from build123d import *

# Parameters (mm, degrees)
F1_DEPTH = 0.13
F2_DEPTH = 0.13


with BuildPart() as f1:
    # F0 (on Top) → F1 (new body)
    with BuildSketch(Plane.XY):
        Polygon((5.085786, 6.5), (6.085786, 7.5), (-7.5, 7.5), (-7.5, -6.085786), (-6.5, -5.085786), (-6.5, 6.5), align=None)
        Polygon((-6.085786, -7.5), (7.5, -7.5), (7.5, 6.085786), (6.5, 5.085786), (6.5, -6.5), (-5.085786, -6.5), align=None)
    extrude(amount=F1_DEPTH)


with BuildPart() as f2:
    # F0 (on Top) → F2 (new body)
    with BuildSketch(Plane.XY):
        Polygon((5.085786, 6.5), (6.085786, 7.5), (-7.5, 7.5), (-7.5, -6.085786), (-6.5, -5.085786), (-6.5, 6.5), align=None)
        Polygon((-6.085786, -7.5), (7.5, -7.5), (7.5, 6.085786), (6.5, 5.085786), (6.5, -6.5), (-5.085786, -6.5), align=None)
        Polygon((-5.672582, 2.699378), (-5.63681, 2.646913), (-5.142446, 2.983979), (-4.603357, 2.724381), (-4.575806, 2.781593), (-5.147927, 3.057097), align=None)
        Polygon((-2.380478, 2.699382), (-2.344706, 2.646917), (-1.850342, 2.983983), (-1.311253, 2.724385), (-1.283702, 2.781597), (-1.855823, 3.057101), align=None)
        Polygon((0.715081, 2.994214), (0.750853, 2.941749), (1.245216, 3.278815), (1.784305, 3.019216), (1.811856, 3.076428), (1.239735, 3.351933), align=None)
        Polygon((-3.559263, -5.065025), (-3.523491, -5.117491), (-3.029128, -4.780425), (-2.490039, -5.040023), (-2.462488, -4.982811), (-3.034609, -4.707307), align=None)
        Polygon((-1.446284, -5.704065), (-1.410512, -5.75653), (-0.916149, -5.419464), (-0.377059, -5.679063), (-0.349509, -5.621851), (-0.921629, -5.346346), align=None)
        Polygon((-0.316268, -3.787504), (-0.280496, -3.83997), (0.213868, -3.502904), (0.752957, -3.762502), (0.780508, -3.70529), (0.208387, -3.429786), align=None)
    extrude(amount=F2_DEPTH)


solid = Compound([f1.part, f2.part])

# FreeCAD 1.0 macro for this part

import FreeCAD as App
import Part
import Sketcher
Q = App.Units.Quantity


def add_polygon(sketch, points):
    """Adds a closed chain of lines whose ends are joined by coincident constraints."""
    first, n = sketch.GeometryCount, len(points)
    for a, b in zip(points, points[1:] + points[:1]):
        sketch.addGeometry(Part.LineSegment(App.Vector(*a, 0), App.Vector(*b, 0)), False)
    for i in range(n):
        sketch.addConstraint(Sketcher.Constraint("Coincident", first + i, 2, first + (i + 1) % n, 1))

doc = App.newDocument("Part")
body = doc.addObject("PartDesign::Body", "Body")
body.AllowCompound = True

# Sketch on XY plane
sketch1 = body.newObject("Sketcher::SketchObject", "Sketch")
sketch1.AttachmentSupport = (doc.getObject("XY_Plane"), [""])
sketch1.MapMode = "FlatFace"
add_polygon(sketch1, [(5.1, 6.5), (6.1, 7.5), (-7.5, 7.5), (-7.5, -6.1), (-6.5, -5.1), (-6.5, 6.5)])  # lines 0-5
add_polygon(sketch1, [(-6.1, -7.5), (7.5, -7.5), (7.5, 6.1), (6.5, 5.1), (6.5, -6.5), (-5.1, -6.5)])  # lines 6-11
sketch1.addConstraint(Sketcher.Constraint("Horizontal", 1))
sketch1.addConstraint(Sketcher.Constraint("Vertical", 2))
sketch1.addConstraint(Sketcher.Constraint("Vertical", 4))
sketch1.addConstraint(Sketcher.Constraint("Horizontal", 5))
sketch1.addConstraint(Sketcher.Constraint("Horizontal", 6))
sketch1.addConstraint(Sketcher.Constraint("Vertical", 7))
sketch1.addConstraint(Sketcher.Constraint("Vertical", 9))
sketch1.addConstraint(Sketcher.Constraint("Horizontal", 10))
sketch1.addConstraint(Sketcher.Constraint("Symmetric", 1, 2, 6, 2, -1, 1))
sketch1.addConstraint(Sketcher.Constraint("Symmetric", 3, 2, 8, 2, -1, 1))
sketch1.addConstraint(Sketcher.Constraint("Symmetric", 5, 2, 10, 2, -1, 1))
sketch1.addConstraint(Sketcher.Constraint("Parallel", 0, 3))
sketch1.addConstraint(Sketcher.Constraint("Parallel", 3, 8))
sketch1.addConstraint(Sketcher.Constraint("Parallel", 8, 11))
sketch1.addConstraint(Sketcher.Constraint("Equal", 6, 2))
sketch1.addConstraint(Sketcher.Constraint("Equal", 10, 4))
sketch1.addConstraint(Sketcher.Constraint("Equal", 0, 3))
sketch1.addConstraint(Sketcher.Constraint("DistanceY", -1, 1, 0, 2, Q("7.5 mm")))
sketch1.addConstraint(Sketcher.Constraint("DistanceX", 1, 2, -1, 1, Q("7.5 mm")))
sketch1.addConstraint(Sketcher.Constraint("DistanceX", 3, 2, -1, 1, Q("6.5 mm")))
sketch1.addConstraint(Sketcher.Constraint("DistanceX", 1, 2, 1, 1, Q("13.585786 mm")))
pad1 = body.newObject("PartDesign::Pad", "Pad")
pad1.Profile = sketch1
pad1.Length = 0.13
body2 = doc.addObject("PartDesign::Body", "Body001")
body2.AllowCompound = True

# Sketch on XY plane
sketch2 = body2.newObject("Sketcher::SketchObject", "Sketch001")
sketch2.AttachmentSupport = (doc.getObject("XY_Plane001"), [""])
sketch2.MapMode = "FlatFace"
add_polygon(sketch2, [(5.09, 6.5), (6.09, 7.5), (-7.5, 7.5), (-7.5, -6.09), (-6.5, -5.09), (-6.5, 6.5)])  # lines 0-5
add_polygon(sketch2, [(-6.09, -7.5), (7.5, -7.5), (7.5, 6.09), (6.5, 5.09), (6.5, -6.5), (-5.09, -6.5)])  # lines 6-11
add_polygon(sketch2, [(-5.67, 2.7), (-5.64, 2.65), (-5.14, 2.98), (-4.6, 2.72), (-4.58, 2.78), (-5.15, 3.06)])  # lines 12-17
add_polygon(sketch2, [(-2.38, 2.7), (-2.34, 2.65), (-1.85, 2.98), (-1.31, 2.72), (-1.28, 2.78), (-1.86, 3.06)])  # lines 18-23
add_polygon(sketch2, [(0.72, 2.99), (0.75, 2.94), (1.25, 3.28), (1.78, 3.02), (1.81, 3.08), (1.24, 3.35)])  # lines 24-29
add_polygon(sketch2, [(-3.56, -5.07), (-3.52, -5.12), (-3.03, -4.78), (-2.49, -5.04), (-2.46, -4.98), (-3.03, -4.71)])  # lines 30-35
add_polygon(sketch2, [(-1.45, -5.7), (-1.41, -5.76), (-0.92, -5.42), (-0.38, -5.68), (-0.35, -5.62), (-0.92, -5.35)])  # lines 36-41
add_polygon(sketch2, [(-0.32, -3.79), (-0.28, -3.84), (0.21, -3.5), (0.75, -3.76), (0.78, -3.71), (0.21, -3.43)])  # lines 42-47
sketch2.addConstraint(Sketcher.Constraint("Horizontal", 1))
sketch2.addConstraint(Sketcher.Constraint("Vertical", 2))
sketch2.addConstraint(Sketcher.Constraint("Vertical", 4))
sketch2.addConstraint(Sketcher.Constraint("Horizontal", 5))
sketch2.addConstraint(Sketcher.Constraint("Horizontal", 6))
sketch2.addConstraint(Sketcher.Constraint("Vertical", 7))
sketch2.addConstraint(Sketcher.Constraint("Vertical", 9))
sketch2.addConstraint(Sketcher.Constraint("Horizontal", 10))
sketch2.addConstraint(Sketcher.Constraint("Symmetric", 1, 2, 6, 2, -1, 1))
sketch2.addConstraint(Sketcher.Constraint("Symmetric", 3, 2, 8, 2, -1, 1))
sketch2.addConstraint(Sketcher.Constraint("Symmetric", 5, 2, 10, 2, -1, 1))
sketch2.addConstraint(Sketcher.Constraint("Parallel", 0, 3))
sketch2.addConstraint(Sketcher.Constraint("Parallel", 3, 8))
sketch2.addConstraint(Sketcher.Constraint("Parallel", 8, 11))
sketch2.addConstraint(Sketcher.Constraint("Parallel", 14, 16))
sketch2.addConstraint(Sketcher.Constraint("Parallel", 13, 17))
sketch2.addConstraint(Sketcher.Constraint("Parallel", 12, 18))
sketch2.addConstraint(Sketcher.Constraint("Parallel", 17, 19))
sketch2.addConstraint(Sketcher.Constraint("Parallel", 16, 20))
sketch2.addConstraint(Sketcher.Constraint("Parallel", 15, 21))
sketch2.addConstraint(Sketcher.Constraint("Parallel", 20, 22))
sketch2.addConstraint(Sketcher.Constraint("Parallel", 19, 23))
sketch2.addConstraint(Sketcher.Constraint("Parallel", 18, 24))
sketch2.addConstraint(Sketcher.Constraint("Parallel", 23, 25))
sketch2.addConstraint(Sketcher.Constraint("Parallel", 20, 26))
sketch2.addConstraint(Sketcher.Constraint("Parallel", 21, 27))
sketch2.addConstraint(Sketcher.Constraint("Parallel", 26, 28))
sketch2.addConstraint(Sketcher.Constraint("Parallel", 25, 29))
sketch2.addConstraint(Sketcher.Constraint("Parallel", 29, 31))
sketch2.addConstraint(Sketcher.Constraint("Parallel", 28, 32))
sketch2.addConstraint(Sketcher.Constraint("Parallel", 27, 33))
sketch2.addConstraint(Sketcher.Constraint("Parallel", 32, 34))
sketch2.addConstraint(Sketcher.Constraint("Parallel", 31, 35))
sketch2.addConstraint(Sketcher.Constraint("Parallel", 24, 36))
sketch2.addConstraint(Sketcher.Constraint("Parallel", 35, 37))
sketch2.addConstraint(Sketcher.Constraint("Parallel", 34, 38))
sketch2.addConstraint(Sketcher.Constraint("Parallel", 38, 40))
sketch2.addConstraint(Sketcher.Constraint("Parallel", 37, 41))
sketch2.addConstraint(Sketcher.Constraint("Parallel", 30, 42))
sketch2.addConstraint(Sketcher.Constraint("Parallel", 41, 43))
sketch2.addConstraint(Sketcher.Constraint("Parallel", 40, 44))
sketch2.addConstraint(Sketcher.Constraint("Parallel", 33, 45))
sketch2.addConstraint(Sketcher.Constraint("Parallel", 44, 46))
sketch2.addConstraint(Sketcher.Constraint("Parallel", 43, 47))
sketch2.addConstraint(Sketcher.Constraint("Equal", 6, 2))
sketch2.addConstraint(Sketcher.Constraint("Equal", 10, 4))
sketch2.addConstraint(Sketcher.Constraint("Equal", 0, 3))
sketch2.addConstraint(Sketcher.Constraint("Equal", 13, 14))
sketch2.addConstraint(Sketcher.Constraint("Equal", 12, 15))
sketch2.addConstraint(Sketcher.Constraint("Equal", 16, 17))
sketch2.addConstraint(Sketcher.Constraint("Equal", 15, 18))
sketch2.addConstraint(Sketcher.Constraint("Equal", 14, 19))
sketch2.addConstraint(Sketcher.Constraint("Equal", 19, 20))
sketch2.addConstraint(Sketcher.Constraint("Equal", 18, 21))
sketch2.addConstraint(Sketcher.Constraint("Equal", 21, 24))
sketch2.addConstraint(Sketcher.Constraint("Equal", 20, 25))
sketch2.addConstraint(Sketcher.Constraint("Equal", 25, 26))
sketch2.addConstraint(Sketcher.Constraint("Equal", 24, 27))
sketch2.addConstraint(Sketcher.Constraint("Equal", 27, 30))
sketch2.addConstraint(Sketcher.Constraint("Equal", 26, 31))
sketch2.addConstraint(Sketcher.Constraint("Equal", 31, 32))
sketch2.addConstraint(Sketcher.Constraint("Equal", 30, 33))
sketch2.addConstraint(Sketcher.Constraint("Equal", 34, 35))
sketch2.addConstraint(Sketcher.Constraint("Equal", 33, 36))
sketch2.addConstraint(Sketcher.Constraint("Equal", 32, 37))
sketch2.addConstraint(Sketcher.Constraint("Equal", 37, 38))
sketch2.addConstraint(Sketcher.Constraint("Equal", 36, 39))
sketch2.addConstraint(Sketcher.Constraint("Equal", 35, 40))
sketch2.addConstraint(Sketcher.Constraint("Equal", 39, 42))
sketch2.addConstraint(Sketcher.Constraint("Equal", 38, 43))
sketch2.addConstraint(Sketcher.Constraint("Equal", 43, 44))
sketch2.addConstraint(Sketcher.Constraint("Equal", 42, 45))
sketch2.addConstraint(Sketcher.Constraint("Distance", 16, Q("0.025 in")))
sketch2.addConstraint(Sketcher.Constraint("Distance", 12, Q("0.0025 in")))
sketch2.addConstraint(Sketcher.Constraint("DistanceY", 10, 2, 31, 2, Q("0.0676998 in")))
sketch2.addConstraint(Sketcher.Constraint("DistanceY", -1, 1, 0, 2, Q("7.5 mm")))
sketch2.addConstraint(Sketcher.Constraint("DistanceX", 1, 2, -1, 1, Q("7.5 mm")))
sketch2.addConstraint(Sketcher.Constraint("DistanceX", 3, 2, -1, 1, Q("6.5 mm")))
sketch2.addConstraint(Sketcher.Constraint("DistanceX", 21, 2, -1, 1, Q("1.283702 mm")))
sketch2.addConstraint(Sketcher.Constraint("DistanceY", -1, 1, 22, 2, Q("3.057101 mm")))
sketch2.addConstraint(Sketcher.Constraint("DistanceY", 44, 2, -1, 1, Q("3.762502 mm")))
sketch2.addConstraint(Sketcher.Constraint("DistanceY", 3, 2, 12, 2, Q("7.732699 mm")))
sketch2.addConstraint(Sketcher.Constraint("DistanceY", 17, 2, 13, 2, Q("0.284601 mm")))
sketch2.addConstraint(Sketcher.Constraint("DistanceX", 15, 2, 18, 2, Q("2.2311 mm")))
sketch2.addConstraint(Sketcher.Constraint("DistanceY", 14, 2, 19, 2, Q("0.259602 mm")))
sketch2.addConstraint(Sketcher.Constraint("DistanceY", 26, 2, 25, 2, Q("0.259599 mm")))
sketch2.addConstraint(Sketcher.Constraint("Distance", 13, Q("0.598339 mm")))
sketch2.addConstraint(Sketcher.Constraint("DistanceY", -1, 1, 24, 2, Q("2.941749 mm")))
sketch2.addConstraint(Sketcher.Constraint("DistanceX", -1, 1, 29, 2, Q("0.715081 mm")))
sketch2.addConstraint(Sketcher.Constraint("DistanceX", 30, 2, -1, 1, Q("3.523491 mm")))
sketch2.addConstraint(Sketcher.Constraint("DistanceY", 36, 2, -1, 1, Q("5.75653 mm")))
sketch2.addConstraint(Sketcher.Constraint("DistanceX", 37, 2, -1, 1, Q("0.916149 mm")))
sketch2.addConstraint(Sketcher.Constraint("DistanceX", 42, 2, -1, 1, Q("0.280496 mm")))
pad2 = body2.newObject("PartDesign::Pad", "Pad001")
pad2.Profile = sketch2
pad2.Length = 0.13

doc.recompute()
